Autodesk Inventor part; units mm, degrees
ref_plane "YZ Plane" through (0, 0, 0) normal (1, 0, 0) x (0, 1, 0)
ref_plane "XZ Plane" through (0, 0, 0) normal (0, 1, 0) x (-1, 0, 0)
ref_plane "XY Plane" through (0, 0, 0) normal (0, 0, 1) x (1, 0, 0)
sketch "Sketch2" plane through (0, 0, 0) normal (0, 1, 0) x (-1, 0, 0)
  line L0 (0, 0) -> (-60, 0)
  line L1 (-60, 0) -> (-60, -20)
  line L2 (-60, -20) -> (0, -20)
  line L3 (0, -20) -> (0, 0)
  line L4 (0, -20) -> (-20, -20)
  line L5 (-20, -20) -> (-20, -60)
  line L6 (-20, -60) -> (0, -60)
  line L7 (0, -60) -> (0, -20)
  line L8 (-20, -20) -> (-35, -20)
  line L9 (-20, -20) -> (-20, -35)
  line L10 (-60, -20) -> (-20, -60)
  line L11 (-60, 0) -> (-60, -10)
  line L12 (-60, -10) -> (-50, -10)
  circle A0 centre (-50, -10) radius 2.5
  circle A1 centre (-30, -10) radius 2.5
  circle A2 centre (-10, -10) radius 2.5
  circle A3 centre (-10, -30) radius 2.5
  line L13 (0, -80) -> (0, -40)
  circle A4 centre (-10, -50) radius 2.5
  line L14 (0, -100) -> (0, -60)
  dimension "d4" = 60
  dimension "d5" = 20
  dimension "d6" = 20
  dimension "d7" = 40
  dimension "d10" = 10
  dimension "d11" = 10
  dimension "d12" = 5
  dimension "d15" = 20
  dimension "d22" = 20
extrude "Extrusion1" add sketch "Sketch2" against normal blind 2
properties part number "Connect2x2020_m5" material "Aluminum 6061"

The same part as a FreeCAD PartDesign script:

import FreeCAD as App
import Part
import Sketcher

V = App.Vector
Q = App.Units.Quantity


def add_polygon(sketch, points):
    """Adds a closed chain of lines whose ends are joined by coincident constraints."""
    first, n = sketch.GeometryCount, len(points)
    for a, b in zip(points, points[1:] + points[:1]):
        sketch.addGeometry(Part.LineSegment(App.Vector(*a, 0), App.Vector(*b, 0)), False)
    for i in range(n):
        sketch.addConstraint(Sketcher.Constraint("Coincident", first + i, 2, first + (i + 1) % n, 1))

doc = App.newDocument("Part")
body = doc.addObject("PartDesign::Body", "Body")

# Sketch on XZ plane
sketch1 = body.newObject("Sketcher::SketchObject", "Sketch")
sketch1.AttachmentSupport = (doc.getObject("XZ_Plane"), [""])
sketch1.MapMode = "FlatFace"
add_polygon(sketch1, [(0, 0), (60, 0), (60, -10), (60, -20), (20, -60), (0, -60)])  # lines 0-5
sketch1.addGeometry(Part.Circle(V(50, -10, 0), V(0, 0, 1), 2.5), False)  # 6
sketch1.addGeometry(Part.Circle(V(30, -10, 0), V(0, 0, 1), 2.5), False)  # 7
sketch1.addGeometry(Part.Circle(V(10, -10, 0), V(0, 0, 1), 2.5), False)  # 8
sketch1.addGeometry(Part.Circle(V(10, -30, 0), V(0, 0, 1), 2.5), False)  # 9
sketch1.addGeometry(Part.Circle(V(10, -50, 0), V(0, 0, 1), 2.5), False)  # 10
sketch1.addConstraint([
    Sketcher.Constraint("Horizontal", 0),
    Sketcher.Constraint("Vertical", 1),
    Sketcher.Constraint("Vertical", 2),
    Sketcher.Constraint("Horizontal", 4),
    Sketcher.Constraint("Vertical", 5),
    Sketcher.Constraint("Coincident", 5, 2, -1, 1),
    Sketcher.Constraint("Equal", 6, 7),
    Sketcher.Constraint("Equal", 7, 8),
    Sketcher.Constraint("Equal", 8, 9),
    Sketcher.Constraint("Equal", 9, 10),
    Sketcher.Constraint("Horizontal", 6, 3, 7, 3),
    Sketcher.Constraint("Horizontal", 7, 3, 8, 3),
    Sketcher.Constraint("Horizontal", 8, 3, 1, 2),
    Sketcher.Constraint("Vertical", 8, 3, 9, 3),
    Sketcher.Constraint("Vertical", 9, 3, 10, 3),
    Sketcher.Constraint("Equal", 1, 2),
    Sketcher.Constraint("Equal", 0, 5),
    Sketcher.Constraint("Diameter", 6, Q("5 mm")),
    Sketcher.Constraint("DistanceX", 0, 1, 0, 2, Q("60 mm")),
    Sketcher.Constraint("DistanceX", 4, 2, 4, 1, Q("20 mm")),
    Sketcher.Constraint("DistanceY", 1, 2, 1, 1, Q("10 mm")),
    Sketcher.Constraint("DistanceX", -1, 1, 8, 3, Q("10 mm")),
    Sketcher.Constraint("DistanceX", 7, 3, 6, 3, Q("20 mm")),
    Sketcher.Constraint("DistanceX", 8, 3, 7, 3, Q("20 mm")),
    Sketcher.Constraint("DistanceY", 9, 3, 8, 3, Q("20 mm")),
    Sketcher.Constraint("DistanceY", 10, 3, 9, 3, Q("20 mm")),
])
pad1 = body.newObject("PartDesign::Pad", "Pad")
pad1.Profile = sketch1
pad1.Length = 2

doc.recompute()
